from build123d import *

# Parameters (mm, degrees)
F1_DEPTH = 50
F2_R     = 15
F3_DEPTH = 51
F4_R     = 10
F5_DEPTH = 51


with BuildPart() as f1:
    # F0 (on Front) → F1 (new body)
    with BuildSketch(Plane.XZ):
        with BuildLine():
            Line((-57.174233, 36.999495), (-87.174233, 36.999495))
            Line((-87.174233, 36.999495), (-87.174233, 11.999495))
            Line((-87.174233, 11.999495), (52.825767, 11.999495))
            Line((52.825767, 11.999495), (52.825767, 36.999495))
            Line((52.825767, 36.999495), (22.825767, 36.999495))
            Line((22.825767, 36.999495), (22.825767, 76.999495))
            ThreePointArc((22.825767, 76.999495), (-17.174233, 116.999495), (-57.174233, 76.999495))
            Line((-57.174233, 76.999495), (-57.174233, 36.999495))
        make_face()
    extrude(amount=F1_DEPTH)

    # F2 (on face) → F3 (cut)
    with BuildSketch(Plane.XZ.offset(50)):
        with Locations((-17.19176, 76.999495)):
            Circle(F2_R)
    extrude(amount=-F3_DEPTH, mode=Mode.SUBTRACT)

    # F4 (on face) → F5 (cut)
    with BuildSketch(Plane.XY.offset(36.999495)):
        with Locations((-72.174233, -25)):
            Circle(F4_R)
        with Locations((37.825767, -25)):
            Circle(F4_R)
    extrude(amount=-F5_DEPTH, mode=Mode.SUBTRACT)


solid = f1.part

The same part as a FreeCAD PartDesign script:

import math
import FreeCAD as App
import Part
import Sketcher

V = App.Vector
Q = App.Units.Quantity

doc = App.newDocument("Part")
body = doc.addObject("PartDesign::Body", "Body")

# Sketch on XZ plane
sketch1 = body.newObject("Sketcher::SketchObject", "Sketch")
sketch1.AttachmentSupport = (doc.getObject("XZ_Plane"), [""])
sketch1.MapMode = "FlatFace"
sketch1.addGeometry([
    Part.LineSegment(V(-57, 37, 0), V(-87, 37, 0)),  # 0
    Part.LineSegment(V(-87, 37, 0), V(-87, 12, 0)),  # 1
    Part.LineSegment(V(-87, 12, 0), V(53, 12, 0)),  # 2
    Part.LineSegment(V(53, 12, 0), V(53, 37, 0)),  # 3
    Part.LineSegment(V(53, 37, 0), V(23, 37, 0)),  # 4
    Part.LineSegment(V(23, 37, 0), V(23, 77, 0)),  # 5
    Part.ArcOfCircle(Part.Circle(V(-17, 77, 0), V(0, 0, 1), 40), math.radians(0), math.radians(180)),  # 6
    Part.LineSegment(V(-57, 77, 0), V(-57, 37, 0)),  # 7
], False)
sketch1.addConstraint([
    Sketcher.Constraint("Coincident", 0, 2, 1, 1),
    Sketcher.Constraint("Coincident", 1, 2, 2, 1),
    Sketcher.Constraint("Coincident", 2, 2, 3, 1),
    Sketcher.Constraint("Coincident", 3, 2, 4, 1),
    Sketcher.Constraint("Coincident", 4, 2, 5, 1),
    Sketcher.Constraint("Tangent", 5, 2, 6, 1),
    Sketcher.Constraint("Tangent", 6, 2, 7, 1),
    Sketcher.Constraint("Coincident", 7, 2, 0, 1),
    Sketcher.Constraint("Horizontal", 0),
    Sketcher.Constraint("Vertical", 1),
    Sketcher.Constraint("Horizontal", 2),
    Sketcher.Constraint("Vertical", 3),
    Sketcher.Constraint("Horizontal", 4),
    Sketcher.Constraint("Vertical", 5),
    Sketcher.Constraint("Vertical", 7),
    Sketcher.Constraint("Horizontal", 0, 2, 3, 2),
    Sketcher.Constraint("Equal", 0, 4),
    Sketcher.Constraint("Radius", 6, Q("40 mm")),
    Sketcher.Constraint("DistanceX", 0, 2, 0, 1, Q("30 mm")),
    Sketcher.Constraint("DistanceY", 1, 2, 1, 1, Q("25 mm")),
    Sketcher.Constraint("DistanceY", 5, 1, 5, 2, Q("40 mm")),
    Sketcher.Constraint("DistanceX", 6, 3, -1, 1, Q("17.174233 mm")),
    Sketcher.Constraint("DistanceY", -1, 1, 6, 3, Q("76.999495 mm")),
])
pad1 = body.newObject("PartDesign::Pad", "Pad")
pad1.Profile = sketch1
pad1.Length = 50

# Sketch on XZ plane
sketch2 = body.newObject("Sketcher::SketchObject", "Sketch001")
sketch2.AttachmentSupport = (doc.getObject("XZ_Plane"), [""])
sketch2.MapMode = "FlatFace"
sketch2.AttachmentOffset = App.Placement(V(0, 0, 50), App.Rotation())
sketch2.addGeometry(Part.Circle(V(-17, 77, 0), V(0, 0, 1), 15), False)
sketch2.addConstraint([
    Sketcher.Constraint("Diameter", 0, Q("30 mm")),
    Sketcher.Constraint("DistanceX", 0, 3, -1, 1, Q("17.19176 mm")),
    Sketcher.Constraint("DistanceY", -1, 1, 0, 3, Q("76.999495 mm")),
])
pocket1 = body.newObject("PartDesign::Pocket", "Pocket")
pocket1.Profile = sketch2
pocket1.Length = 51

# Sketch on XY plane
sketch3 = body.newObject("Sketcher::SketchObject", "Sketch002")
sketch3.AttachmentSupport = (doc.getObject("XY_Plane"), [""])
sketch3.MapMode = "FlatFace"
sketch3.AttachmentOffset = App.Placement(V(0, 0, 36.999495), App.Rotation())
sketch3.addGeometry([
    Part.Circle(V(-72, -25, 0), V(0, 0, 1), 10),
    Part.Circle(V(38, -25, 0), V(0, 0, 1), 10),
], False)
sketch3.addConstraint([
    Sketcher.Constraint("Equal", 0, 1),
    Sketcher.Constraint("Horizontal", 0, 3, 1, 3),
    Sketcher.Constraint("Diameter", 0, Q("20 mm")),
    Sketcher.Constraint("DistanceY", 0, 3, -1, 1, Q("25 mm")),
    Sketcher.Constraint("DistanceX", 0, 3, 1, 3, Q("110 mm")),
    Sketcher.Constraint("DistanceX", 0, 3, -1, 1, Q("72.174233 mm")),
])
pocket2 = body.newObject("PartDesign::Pocket", "Pocket001")
pocket2.Profile = sketch3
pocket2.Length = 51

doc.recompute()
